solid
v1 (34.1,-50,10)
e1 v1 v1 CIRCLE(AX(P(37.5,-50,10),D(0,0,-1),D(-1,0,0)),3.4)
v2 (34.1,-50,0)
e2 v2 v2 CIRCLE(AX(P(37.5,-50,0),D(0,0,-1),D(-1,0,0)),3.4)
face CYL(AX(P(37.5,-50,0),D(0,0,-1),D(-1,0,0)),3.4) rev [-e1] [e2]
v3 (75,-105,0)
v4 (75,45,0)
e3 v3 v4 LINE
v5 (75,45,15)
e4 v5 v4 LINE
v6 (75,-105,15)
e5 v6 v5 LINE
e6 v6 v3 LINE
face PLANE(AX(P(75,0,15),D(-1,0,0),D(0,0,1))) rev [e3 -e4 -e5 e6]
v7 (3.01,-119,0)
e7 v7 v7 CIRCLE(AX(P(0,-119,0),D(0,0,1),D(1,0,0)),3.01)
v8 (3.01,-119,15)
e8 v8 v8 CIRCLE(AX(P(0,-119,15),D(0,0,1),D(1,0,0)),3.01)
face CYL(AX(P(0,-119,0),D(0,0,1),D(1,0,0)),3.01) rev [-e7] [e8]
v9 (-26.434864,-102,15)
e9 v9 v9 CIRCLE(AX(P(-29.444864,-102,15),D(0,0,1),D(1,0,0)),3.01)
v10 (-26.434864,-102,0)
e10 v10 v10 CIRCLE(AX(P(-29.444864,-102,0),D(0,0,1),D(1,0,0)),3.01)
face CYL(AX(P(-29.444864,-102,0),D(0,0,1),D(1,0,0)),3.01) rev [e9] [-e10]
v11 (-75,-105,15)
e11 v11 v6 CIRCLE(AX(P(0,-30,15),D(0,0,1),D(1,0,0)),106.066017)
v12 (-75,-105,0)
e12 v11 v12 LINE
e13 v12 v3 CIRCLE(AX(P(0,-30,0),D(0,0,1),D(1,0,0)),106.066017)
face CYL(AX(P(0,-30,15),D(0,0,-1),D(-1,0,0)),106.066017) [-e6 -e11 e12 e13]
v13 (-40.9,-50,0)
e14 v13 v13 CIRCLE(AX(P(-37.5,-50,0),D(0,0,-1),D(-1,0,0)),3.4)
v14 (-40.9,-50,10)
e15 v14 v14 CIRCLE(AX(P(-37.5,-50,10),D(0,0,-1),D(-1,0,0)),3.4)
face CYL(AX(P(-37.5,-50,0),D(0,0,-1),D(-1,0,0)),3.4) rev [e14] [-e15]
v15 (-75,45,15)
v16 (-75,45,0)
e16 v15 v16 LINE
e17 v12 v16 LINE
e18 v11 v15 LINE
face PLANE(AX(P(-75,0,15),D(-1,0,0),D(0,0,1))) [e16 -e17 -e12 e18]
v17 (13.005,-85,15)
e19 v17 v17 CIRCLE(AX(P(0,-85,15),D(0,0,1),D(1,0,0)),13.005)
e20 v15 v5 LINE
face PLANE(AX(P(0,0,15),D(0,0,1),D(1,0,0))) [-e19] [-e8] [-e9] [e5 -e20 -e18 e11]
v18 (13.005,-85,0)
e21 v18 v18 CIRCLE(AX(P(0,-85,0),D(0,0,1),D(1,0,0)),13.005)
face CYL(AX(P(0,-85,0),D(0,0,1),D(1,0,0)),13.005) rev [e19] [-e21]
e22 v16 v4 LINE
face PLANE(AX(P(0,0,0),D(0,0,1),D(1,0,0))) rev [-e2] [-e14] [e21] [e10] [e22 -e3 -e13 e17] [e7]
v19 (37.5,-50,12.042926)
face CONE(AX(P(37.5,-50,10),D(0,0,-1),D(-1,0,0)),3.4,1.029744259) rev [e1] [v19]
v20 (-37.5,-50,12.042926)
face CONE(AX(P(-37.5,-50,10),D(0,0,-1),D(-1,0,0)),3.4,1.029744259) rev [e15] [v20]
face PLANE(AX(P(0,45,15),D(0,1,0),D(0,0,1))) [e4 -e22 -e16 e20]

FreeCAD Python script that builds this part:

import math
import FreeCAD as App
import Part
import Sketcher

V = App.Vector
Q = App.Units.Quantity

doc = App.newDocument("Part")
body = doc.addObject("PartDesign::Body", "Body")

sketch1 = doc.addObject("Sketcher::SketchObject", "Sketch")
body.addObject(sketch1)
sketch1.AttachmentSupport = (doc.XY_Plane, [""])
sketch1.MapMode = "FlatFace"
sketch1.addGeometry(Part.LineSegment(V(-75, 45, 0), V(-75, -105, 0)), False)
sketch1.addGeometry(Part.ArcOfCircle(Part.Circle(V(0, -30, 0), V(0, 0, 1), 106), math.radians(-135), math.radians(-45)), False)
sketch1.addGeometry(Part.LineSegment(V(75, -105, 0), V(75, 45, 0)), False)
sketch1.addGeometry(Part.LineSegment(V(75, 45, 0), V(-75, 45, 0)), False)
sketch1.addConstraint(Sketcher.Constraint("Coincident", 0, 2, 1, 1))
sketch1.addConstraint(Sketcher.Constraint("Coincident", 1, 2, 2, 1))
sketch1.addConstraint(Sketcher.Constraint("Coincident", 2, 2, 3, 1))
sketch1.addConstraint(Sketcher.Constraint("Coincident", 3, 2, 0, 1))
sketch1.addConstraint(Sketcher.Constraint("Vertical", 0))
sketch1.addConstraint(Sketcher.Constraint("Vertical", 2))
sketch1.addConstraint(Sketcher.Constraint("Horizontal", 3))
sketch1.addConstraint(Sketcher.Constraint("Symmetric", 0, 2, 1, 2, -2))
sketch1.addConstraint(Sketcher.Constraint("Equal", 3, 0))
sketch1.addConstraint(Sketcher.Constraint("DistanceX", 3, 2, 3, 1, Q("150 mm")))
sketch1.addConstraint(Sketcher.Constraint("DistanceY", 1, 3, -1, 1, Q("30 mm")))
sketch1.addConstraint(Sketcher.Constraint("DistanceY", 0, 2, -1, 1, Q("105 mm")))
pad1 = doc.addObject("PartDesign::Pad", "Pad")
body.addObject(pad1)
pad1.Profile = sketch1
pad1.Length = 15

sketch2 = doc.addObject("Sketcher::SketchObject", "Sketch001")
body.addObject(sketch2)
sketch2.AttachmentSupport = (doc.XY_Plane, [""])
sketch2.MapMode = "FlatFace"
sketch2.AttachmentOffset = App.Placement(V(0, 0, 15), App.Rotation())
sketch2.addGeometry(Part.Circle(V(0, -85, 0), V(0, 0, 1), 13), False)
sketch2.addGeometry(Part.Circle(V(-29.4, -102, 0), V(0, 0, 1), 3), False)
sketch2.addGeometry(Part.Circle(V(0, -119, 0), V(0, 0, 1), 3), False)
sketch2.addConstraint(Sketcher.Constraint("Equal", 1, 2))
sketch2.addConstraint(Sketcher.Constraint("PointOnObject", 0, 3, -2))
sketch2.addConstraint(Sketcher.Constraint("PointOnObject", 2, 3, -2))
sketch2.addConstraint(Sketcher.Constraint("Diameter", 0, Q("26.01 mm")))
sketch2.addConstraint(Sketcher.Constraint("Diameter", 1, Q("6.02 mm")))
sketch2.addConstraint(Sketcher.Constraint("DistanceY", 0, 3, -1, 1, Q("85 mm")))
sketch2.addConstraint(Sketcher.Constraint("DistanceY", 1, 3, -1, 1, Q("102 mm")))
sketch2.addConstraint(Sketcher.Constraint("DistanceY", 2, 3, -1, 1, Q("119 mm")))
sketch2.addConstraint(Sketcher.Constraint("DistanceX", 1, 3, -1, 1, Q("29.444864 mm")))
pocket1 = doc.addObject("PartDesign::Pocket", "Pocket")
body.addObject(pocket1)
pocket1.Profile = sketch2
pocket1.Type = "ThroughAll"

sketch3 = doc.addObject("Sketcher::SketchObject", "Sketch002")
body.addObject(sketch3)
sketch3.AttachmentSupport = (doc.XY_Plane, [""])
sketch3.MapMode = "FlatFace"
sketch3.addGeometry(Part.Circle(V(37.5, -50, 0), V(0, 0, 1), 3.4), False)
sketch3.addGeometry(Part.Circle(V(-37.5, -50, 0), V(0, 0, 1), 3.4), False)
sketch3.addConstraint(Sketcher.Constraint("Equal", 0, 1))
sketch3.addConstraint(Sketcher.Constraint("Symmetric", 0, 3, 1, 3, -2))
sketch3.addConstraint(Sketcher.Constraint("Diameter", 0, Q("6.8 mm")))
sketch3.addConstraint(Sketcher.Constraint("DistanceY", 0, 3, -1, 1, Q("50 mm")))
sketch3.addConstraint(Sketcher.Constraint("DistanceX", 1, 3, 0, 3, Q("75 mm")))
doc.recompute()
hole = doc.addObject("PartDesign::Hole", "Hole")
body.addObject(hole)
hole.Profile = sketch3
hole.ThreadType = "None"
hole.Diameter = 6.8
hole.DepthType = "Dimension"
hole.Depth = 10
hole.DrillPoint = "Angled"
hole.DrillPointAngle = 118
hole.Reversed = True

doc.recompute()
